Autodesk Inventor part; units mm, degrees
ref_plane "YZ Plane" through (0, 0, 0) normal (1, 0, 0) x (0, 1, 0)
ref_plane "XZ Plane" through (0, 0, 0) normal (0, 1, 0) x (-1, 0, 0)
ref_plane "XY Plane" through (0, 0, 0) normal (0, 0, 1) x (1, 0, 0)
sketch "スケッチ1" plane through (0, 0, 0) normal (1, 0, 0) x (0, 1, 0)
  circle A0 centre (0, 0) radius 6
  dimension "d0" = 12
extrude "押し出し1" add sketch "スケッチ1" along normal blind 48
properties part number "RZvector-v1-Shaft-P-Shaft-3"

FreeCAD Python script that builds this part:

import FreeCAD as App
import Part
import Sketcher

V = App.Vector

doc = App.newDocument("Part")
body = doc.addObject("PartDesign::Body", "Body")

# Sketch on YZ plane
sketch1 = body.newObject("Sketcher::SketchObject", "Sketch")
sketch1.AttachmentSupport = (doc.getObject("YZ_Plane"), [""])
sketch1.MapMode = "FlatFace"
sketch1.addGeometry(Part.Circle(V(0, 0, 0), V(0, 0, 1), 6), False)
sketch1.addConstraint(Sketcher.Constraint("Coincident", 0, 3, -1, 1))
sketch1.addConstraint(Sketcher.Constraint("Diameter", 0, 12.0))
pad1 = body.newObject("PartDesign::Pad", "Pad")
pad1.Profile = sketch1
pad1.Length = 48

doc.recompute()
